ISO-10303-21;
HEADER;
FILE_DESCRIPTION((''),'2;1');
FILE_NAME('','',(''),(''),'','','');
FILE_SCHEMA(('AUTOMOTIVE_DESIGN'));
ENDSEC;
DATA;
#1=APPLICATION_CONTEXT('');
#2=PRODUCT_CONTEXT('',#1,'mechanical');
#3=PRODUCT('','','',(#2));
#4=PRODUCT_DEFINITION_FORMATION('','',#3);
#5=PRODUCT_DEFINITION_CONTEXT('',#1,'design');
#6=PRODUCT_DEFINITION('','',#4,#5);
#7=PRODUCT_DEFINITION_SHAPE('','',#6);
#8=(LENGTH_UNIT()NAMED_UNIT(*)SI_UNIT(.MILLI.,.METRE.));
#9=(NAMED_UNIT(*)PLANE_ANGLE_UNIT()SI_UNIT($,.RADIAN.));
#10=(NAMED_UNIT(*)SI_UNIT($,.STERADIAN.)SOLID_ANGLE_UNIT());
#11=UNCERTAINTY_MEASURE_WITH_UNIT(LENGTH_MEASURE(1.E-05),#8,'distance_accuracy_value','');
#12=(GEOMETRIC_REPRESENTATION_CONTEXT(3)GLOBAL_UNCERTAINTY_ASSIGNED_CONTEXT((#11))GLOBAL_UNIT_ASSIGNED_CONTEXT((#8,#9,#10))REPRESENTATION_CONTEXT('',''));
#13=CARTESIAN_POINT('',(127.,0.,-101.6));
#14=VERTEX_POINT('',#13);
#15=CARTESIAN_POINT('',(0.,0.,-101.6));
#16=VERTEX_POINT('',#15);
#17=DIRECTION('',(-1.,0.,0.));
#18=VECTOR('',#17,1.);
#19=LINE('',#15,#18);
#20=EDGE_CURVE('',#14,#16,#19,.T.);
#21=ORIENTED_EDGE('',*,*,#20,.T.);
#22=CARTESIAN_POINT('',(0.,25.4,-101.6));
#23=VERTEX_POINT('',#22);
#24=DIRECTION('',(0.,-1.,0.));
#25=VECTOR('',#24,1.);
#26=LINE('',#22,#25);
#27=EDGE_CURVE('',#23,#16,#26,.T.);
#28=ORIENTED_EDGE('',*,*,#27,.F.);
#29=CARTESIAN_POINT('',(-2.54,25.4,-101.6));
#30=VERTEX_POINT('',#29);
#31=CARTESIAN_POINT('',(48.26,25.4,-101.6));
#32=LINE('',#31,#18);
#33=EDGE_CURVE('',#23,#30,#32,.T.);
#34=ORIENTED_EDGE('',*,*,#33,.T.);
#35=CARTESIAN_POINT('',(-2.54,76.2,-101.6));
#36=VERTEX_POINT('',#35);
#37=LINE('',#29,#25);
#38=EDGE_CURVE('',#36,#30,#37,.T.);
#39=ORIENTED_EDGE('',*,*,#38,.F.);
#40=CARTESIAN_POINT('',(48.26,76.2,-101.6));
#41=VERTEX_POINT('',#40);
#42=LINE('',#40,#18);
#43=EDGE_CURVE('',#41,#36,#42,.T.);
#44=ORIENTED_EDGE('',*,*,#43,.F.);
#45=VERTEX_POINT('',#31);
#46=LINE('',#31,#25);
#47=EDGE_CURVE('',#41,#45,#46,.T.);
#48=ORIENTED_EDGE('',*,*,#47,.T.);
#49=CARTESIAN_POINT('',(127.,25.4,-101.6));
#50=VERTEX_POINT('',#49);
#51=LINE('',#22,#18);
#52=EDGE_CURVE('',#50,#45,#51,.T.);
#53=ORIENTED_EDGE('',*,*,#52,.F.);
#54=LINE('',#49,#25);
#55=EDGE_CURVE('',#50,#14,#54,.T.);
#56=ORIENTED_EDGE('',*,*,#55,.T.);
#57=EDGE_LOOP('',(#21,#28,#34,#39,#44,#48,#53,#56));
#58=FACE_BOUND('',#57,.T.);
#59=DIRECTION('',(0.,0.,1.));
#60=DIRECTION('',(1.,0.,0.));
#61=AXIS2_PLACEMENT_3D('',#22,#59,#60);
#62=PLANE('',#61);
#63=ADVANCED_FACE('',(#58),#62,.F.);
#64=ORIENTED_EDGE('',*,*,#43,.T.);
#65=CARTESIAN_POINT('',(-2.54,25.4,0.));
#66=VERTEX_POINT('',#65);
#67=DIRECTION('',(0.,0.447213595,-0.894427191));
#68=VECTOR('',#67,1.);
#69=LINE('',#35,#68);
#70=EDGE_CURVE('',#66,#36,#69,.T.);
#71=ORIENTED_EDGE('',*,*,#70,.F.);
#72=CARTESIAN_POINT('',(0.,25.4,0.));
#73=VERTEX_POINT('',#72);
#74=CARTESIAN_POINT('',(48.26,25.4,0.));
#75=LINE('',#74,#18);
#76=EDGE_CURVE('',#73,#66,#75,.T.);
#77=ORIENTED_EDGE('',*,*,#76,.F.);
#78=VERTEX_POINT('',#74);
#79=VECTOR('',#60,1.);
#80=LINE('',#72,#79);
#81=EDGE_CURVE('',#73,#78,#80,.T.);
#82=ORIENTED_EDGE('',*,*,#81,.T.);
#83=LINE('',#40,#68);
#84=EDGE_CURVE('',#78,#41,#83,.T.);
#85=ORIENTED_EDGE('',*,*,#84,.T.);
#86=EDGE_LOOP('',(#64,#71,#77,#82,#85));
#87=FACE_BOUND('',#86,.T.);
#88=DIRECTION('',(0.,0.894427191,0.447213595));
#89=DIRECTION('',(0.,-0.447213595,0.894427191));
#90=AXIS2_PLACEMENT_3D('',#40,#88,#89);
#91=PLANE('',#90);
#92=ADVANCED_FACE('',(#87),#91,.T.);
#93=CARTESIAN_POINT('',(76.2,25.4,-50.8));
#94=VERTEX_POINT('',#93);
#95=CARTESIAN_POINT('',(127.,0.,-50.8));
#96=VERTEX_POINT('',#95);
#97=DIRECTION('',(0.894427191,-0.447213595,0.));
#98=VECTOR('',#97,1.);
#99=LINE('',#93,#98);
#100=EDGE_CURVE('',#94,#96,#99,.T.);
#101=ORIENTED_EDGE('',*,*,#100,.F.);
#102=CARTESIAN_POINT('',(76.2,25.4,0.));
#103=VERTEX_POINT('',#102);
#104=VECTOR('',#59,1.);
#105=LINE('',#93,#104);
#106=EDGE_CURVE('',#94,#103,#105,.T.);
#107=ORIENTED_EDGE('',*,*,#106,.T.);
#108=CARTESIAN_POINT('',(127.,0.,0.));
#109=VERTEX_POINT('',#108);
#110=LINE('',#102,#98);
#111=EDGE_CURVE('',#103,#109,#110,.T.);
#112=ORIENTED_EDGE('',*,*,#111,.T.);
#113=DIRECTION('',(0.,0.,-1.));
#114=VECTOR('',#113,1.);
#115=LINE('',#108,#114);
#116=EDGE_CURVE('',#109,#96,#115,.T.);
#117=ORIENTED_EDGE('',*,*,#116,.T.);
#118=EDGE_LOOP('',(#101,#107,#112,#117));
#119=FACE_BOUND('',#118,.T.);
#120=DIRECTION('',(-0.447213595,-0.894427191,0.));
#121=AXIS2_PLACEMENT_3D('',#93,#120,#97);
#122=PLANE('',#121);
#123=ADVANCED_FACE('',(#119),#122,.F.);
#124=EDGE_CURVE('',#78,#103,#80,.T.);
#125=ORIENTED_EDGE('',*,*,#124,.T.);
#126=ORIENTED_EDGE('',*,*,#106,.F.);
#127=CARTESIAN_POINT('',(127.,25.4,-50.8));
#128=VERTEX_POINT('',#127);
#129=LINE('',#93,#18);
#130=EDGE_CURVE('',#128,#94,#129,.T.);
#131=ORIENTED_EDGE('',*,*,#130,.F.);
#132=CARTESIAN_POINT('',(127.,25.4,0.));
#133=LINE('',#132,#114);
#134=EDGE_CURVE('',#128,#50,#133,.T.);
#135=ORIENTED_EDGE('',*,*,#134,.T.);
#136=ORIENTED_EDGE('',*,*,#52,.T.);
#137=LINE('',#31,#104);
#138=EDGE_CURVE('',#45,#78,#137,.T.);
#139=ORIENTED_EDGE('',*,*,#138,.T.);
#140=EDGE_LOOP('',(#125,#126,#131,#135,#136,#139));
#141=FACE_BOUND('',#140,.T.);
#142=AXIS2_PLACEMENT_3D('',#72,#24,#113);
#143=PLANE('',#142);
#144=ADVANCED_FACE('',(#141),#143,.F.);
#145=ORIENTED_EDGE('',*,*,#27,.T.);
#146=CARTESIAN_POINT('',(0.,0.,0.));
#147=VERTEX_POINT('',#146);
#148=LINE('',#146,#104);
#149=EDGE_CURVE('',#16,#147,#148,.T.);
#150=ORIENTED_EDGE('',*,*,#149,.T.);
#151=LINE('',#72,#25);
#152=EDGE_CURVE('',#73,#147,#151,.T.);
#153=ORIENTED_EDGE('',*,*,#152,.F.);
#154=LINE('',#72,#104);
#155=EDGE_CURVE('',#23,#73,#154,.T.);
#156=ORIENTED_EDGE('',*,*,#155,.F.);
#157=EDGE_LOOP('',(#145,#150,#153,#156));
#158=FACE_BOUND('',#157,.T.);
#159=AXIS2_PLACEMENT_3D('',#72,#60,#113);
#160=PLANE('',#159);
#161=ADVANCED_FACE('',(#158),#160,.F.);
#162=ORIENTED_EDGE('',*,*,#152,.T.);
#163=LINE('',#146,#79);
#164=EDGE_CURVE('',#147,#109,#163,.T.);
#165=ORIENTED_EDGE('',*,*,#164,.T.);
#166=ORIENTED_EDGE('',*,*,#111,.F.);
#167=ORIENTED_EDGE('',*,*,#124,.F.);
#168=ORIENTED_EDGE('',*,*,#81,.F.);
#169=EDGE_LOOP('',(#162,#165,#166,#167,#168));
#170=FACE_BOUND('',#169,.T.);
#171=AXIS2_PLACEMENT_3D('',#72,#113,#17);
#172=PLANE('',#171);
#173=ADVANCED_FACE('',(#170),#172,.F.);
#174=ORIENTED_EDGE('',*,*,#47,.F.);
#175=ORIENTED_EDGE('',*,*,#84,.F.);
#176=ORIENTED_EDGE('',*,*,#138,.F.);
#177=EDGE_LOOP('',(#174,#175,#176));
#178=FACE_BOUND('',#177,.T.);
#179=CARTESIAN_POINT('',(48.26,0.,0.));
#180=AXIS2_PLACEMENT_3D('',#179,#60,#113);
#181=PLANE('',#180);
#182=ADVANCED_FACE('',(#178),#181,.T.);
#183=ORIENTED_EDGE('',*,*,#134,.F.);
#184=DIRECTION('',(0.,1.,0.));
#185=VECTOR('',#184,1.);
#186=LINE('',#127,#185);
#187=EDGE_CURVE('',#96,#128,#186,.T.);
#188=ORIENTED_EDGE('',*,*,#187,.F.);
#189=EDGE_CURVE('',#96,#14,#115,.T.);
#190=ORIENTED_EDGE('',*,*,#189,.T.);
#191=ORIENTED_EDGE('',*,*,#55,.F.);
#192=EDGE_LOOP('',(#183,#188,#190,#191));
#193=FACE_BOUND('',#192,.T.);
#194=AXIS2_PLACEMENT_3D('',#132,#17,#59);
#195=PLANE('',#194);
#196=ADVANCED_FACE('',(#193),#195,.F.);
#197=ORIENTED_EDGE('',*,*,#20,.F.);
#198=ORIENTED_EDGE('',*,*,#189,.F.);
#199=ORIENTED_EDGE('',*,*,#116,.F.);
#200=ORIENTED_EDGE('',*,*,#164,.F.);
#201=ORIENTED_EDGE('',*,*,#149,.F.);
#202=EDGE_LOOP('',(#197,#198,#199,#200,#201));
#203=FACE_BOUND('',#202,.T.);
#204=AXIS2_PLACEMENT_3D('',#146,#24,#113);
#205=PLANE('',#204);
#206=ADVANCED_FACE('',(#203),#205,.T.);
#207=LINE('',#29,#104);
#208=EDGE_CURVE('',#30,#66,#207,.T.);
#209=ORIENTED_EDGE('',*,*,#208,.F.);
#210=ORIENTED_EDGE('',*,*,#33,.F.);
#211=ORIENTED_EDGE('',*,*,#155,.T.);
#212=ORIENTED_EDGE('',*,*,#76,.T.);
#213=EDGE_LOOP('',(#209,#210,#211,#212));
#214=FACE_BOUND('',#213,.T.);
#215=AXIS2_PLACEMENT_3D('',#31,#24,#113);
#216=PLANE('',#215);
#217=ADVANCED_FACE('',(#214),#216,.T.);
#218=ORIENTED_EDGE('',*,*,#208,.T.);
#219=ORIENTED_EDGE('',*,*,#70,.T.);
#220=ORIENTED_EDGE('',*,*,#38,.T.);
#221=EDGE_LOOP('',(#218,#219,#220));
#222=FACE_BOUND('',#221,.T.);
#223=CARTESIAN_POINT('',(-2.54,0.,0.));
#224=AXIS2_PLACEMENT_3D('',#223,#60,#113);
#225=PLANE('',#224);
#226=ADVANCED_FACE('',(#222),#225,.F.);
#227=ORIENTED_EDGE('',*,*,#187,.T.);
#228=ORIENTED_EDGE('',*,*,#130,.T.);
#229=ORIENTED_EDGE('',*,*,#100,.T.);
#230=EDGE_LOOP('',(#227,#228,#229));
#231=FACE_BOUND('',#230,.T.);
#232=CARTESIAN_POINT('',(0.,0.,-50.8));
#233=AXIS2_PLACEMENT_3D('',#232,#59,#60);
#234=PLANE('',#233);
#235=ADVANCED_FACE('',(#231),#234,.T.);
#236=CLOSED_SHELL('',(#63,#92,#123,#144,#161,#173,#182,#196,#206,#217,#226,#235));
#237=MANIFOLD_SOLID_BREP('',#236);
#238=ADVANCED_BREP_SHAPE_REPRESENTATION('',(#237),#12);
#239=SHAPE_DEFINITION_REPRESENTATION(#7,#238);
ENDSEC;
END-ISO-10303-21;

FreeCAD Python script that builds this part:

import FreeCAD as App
import Part
import Sketcher
from FreeCAD import Vector
Q = App.Units.Quantity


def add_polygon(sketch, points):
    """Adds a closed chain of lines whose ends are joined by coincident constraints."""
    first, n = sketch.GeometryCount, len(points)
    for a, b in zip(points, points[1:] + points[:1]):
        sketch.addGeometry(Part.LineSegment(App.Vector(*a, 0), App.Vector(*b, 0)), False)
    for i in range(n):
        sketch.addConstraint(Sketcher.Constraint("Coincident", first + i, 2, first + (i + 1) % n, 1))

doc = App.newDocument("Part")
body = doc.addObject("PartDesign::Body", "Body")

# Sketch on XZ plane
sketch1 = body.newObject("Sketcher::SketchObject", "Sketch")
sketch1.AttachmentSupport = (doc.getObject("XZ_Plane"), [""])
sketch1.MapMode = "FlatFace"
add_polygon(sketch1, [(0, -102), (0, 0), (127, 0), (127, -102)])  # lines 0-3
sketch1.addConstraint(Sketcher.Constraint("Vertical", 0))
sketch1.addConstraint(Sketcher.Constraint("Horizontal", 1))
sketch1.addConstraint(Sketcher.Constraint("Vertical", 2))
sketch1.addConstraint(Sketcher.Constraint("Horizontal", 3))
sketch1.addConstraint(Sketcher.Constraint("Coincident", 0, 2, -1, 1))
sketch1.addConstraint(Sketcher.Constraint("DistanceX", 1, 1, 1, 2, Q("5 in")))
sketch1.addConstraint(Sketcher.Constraint("DistanceY", 0, 1, 0, 2, Q("4 in")))
pad1 = body.newObject("PartDesign::Pad", "Pad")
pad1.Profile = sketch1
pad1.Length = Q("1 in")
pad1.Reversed = True

# Sketch on XY plane
sketch2 = body.newObject("Sketcher::SketchObject", "Sketch001")
sketch2.AttachmentSupport = (doc.getObject("XY_Plane"), [""])
sketch2.MapMode = "FlatFace"
add_polygon(sketch2, [(127, 25), (76, 25), (127, 0)])  # lines 0-2
sketch2.addConstraint(Sketcher.Constraint("Horizontal", 0))
sketch2.addConstraint(Sketcher.Constraint("Vertical", 2))
sketch2.addConstraint(Sketcher.Constraint("PointOnObject", 1, 2, -1))
sketch2.addConstraint(Sketcher.Constraint("DistanceX", 0, 2, 0, 1, Q("2 in")))
sketch2.addConstraint(Sketcher.Constraint("DistanceY", 2, 1, 2, 2, Q("1 in")))
sketch2.addConstraint(Sketcher.Constraint("DistanceX", -1, 1, 0, 2, Q("3 in")))
pocket1 = body.newObject("PartDesign::Pocket", "Pocket")
pocket1.Profile = sketch2
pocket1.Length = Q("2 in")

# Sketch on YZ plane
sketch3 = body.newObject("Sketcher::SketchObject", "Sketch002")
sketch3.AttachmentSupport = (doc.getObject("YZ_Plane"), [""])
sketch3.MapMode = "FlatFace"
sketch3.AttachmentOffset = App.Placement(Vector(0, 0, -0.1 * 25.4), App.Rotation())
add_polygon(sketch3, [(25, -102), (25, 0), (76, -102)])  # lines 0-2
sketch3.addConstraint(Sketcher.Constraint("Vertical", 0))
sketch3.addConstraint(Sketcher.Constraint("Horizontal", 2))
sketch3.addConstraint(Sketcher.Constraint("PointOnObject", 0, 2, -1))
sketch3.addConstraint(Sketcher.Constraint("DistanceX", 2, 2, 2, 1, Q("2 in")))
sketch3.addConstraint(Sketcher.Constraint("DistanceY", 0, 1, 0, 2, Q("4 in")))
sketch3.addConstraint(Sketcher.Constraint("DistanceX", -1, 1, 0, 2, Q("1 in")))
pad2 = body.newObject("PartDesign::Pad", "Pad001")
pad2.Profile = sketch3
pad2.Length = Q("2 in")

doc.recompute()
